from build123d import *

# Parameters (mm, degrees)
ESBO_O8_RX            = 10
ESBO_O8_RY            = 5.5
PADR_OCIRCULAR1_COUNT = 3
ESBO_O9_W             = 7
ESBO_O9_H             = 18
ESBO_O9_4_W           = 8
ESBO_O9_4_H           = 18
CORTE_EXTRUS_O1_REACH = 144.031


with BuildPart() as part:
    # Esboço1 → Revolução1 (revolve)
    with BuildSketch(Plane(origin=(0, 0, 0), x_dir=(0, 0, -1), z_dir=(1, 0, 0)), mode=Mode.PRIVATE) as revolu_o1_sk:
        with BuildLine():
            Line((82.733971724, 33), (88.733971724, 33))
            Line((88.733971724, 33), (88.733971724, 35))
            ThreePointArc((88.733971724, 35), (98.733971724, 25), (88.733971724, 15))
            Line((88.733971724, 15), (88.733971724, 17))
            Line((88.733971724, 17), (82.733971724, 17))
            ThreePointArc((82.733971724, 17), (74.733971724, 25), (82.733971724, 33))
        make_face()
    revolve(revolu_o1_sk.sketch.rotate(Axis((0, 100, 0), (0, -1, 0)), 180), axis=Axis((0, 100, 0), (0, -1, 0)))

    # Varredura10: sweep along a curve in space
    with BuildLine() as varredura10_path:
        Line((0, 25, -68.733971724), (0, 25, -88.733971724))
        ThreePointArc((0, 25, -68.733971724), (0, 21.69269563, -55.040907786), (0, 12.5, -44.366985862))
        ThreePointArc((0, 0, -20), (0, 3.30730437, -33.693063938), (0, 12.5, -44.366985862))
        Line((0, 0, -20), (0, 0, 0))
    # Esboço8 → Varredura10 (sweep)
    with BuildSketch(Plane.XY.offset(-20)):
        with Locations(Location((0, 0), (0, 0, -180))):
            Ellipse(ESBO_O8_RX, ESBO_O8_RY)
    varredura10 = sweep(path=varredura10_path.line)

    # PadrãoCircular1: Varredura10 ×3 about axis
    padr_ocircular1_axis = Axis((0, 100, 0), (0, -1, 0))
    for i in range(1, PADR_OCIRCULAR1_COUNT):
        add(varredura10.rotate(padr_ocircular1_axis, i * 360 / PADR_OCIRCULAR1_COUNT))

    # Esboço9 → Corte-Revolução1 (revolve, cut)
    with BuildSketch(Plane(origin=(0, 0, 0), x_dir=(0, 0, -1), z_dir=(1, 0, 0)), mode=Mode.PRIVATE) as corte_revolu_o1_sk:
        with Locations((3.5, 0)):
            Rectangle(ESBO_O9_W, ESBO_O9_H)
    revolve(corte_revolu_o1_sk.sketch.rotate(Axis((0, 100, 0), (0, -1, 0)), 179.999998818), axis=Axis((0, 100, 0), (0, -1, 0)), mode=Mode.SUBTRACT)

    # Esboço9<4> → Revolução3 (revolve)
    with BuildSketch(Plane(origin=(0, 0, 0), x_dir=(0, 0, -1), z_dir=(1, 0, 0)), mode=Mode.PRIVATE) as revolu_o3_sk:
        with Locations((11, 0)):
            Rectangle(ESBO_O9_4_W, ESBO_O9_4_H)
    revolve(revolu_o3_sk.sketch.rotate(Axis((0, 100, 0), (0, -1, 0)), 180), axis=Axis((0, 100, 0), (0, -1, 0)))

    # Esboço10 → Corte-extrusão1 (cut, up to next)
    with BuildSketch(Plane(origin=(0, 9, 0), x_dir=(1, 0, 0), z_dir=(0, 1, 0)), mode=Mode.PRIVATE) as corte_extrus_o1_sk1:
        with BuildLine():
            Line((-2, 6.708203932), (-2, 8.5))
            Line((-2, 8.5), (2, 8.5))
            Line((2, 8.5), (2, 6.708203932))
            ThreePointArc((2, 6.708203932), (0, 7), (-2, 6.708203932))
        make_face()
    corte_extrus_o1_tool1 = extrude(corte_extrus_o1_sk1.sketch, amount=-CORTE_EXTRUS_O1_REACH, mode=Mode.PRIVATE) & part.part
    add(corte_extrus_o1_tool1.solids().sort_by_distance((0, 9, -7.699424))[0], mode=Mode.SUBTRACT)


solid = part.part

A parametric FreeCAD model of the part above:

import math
import FreeCAD as App
import Part
import Sketcher
Q = App.Units.Quantity


def add_polygon(sketch, points):
    """Adds a closed chain of lines whose ends are joined by coincident constraints."""
    first, n = sketch.GeometryCount, len(points)
    for a, b in zip(points, points[1:] + points[:1]):
        sketch.addGeometry(Part.LineSegment(App.Vector(*a, 0), App.Vector(*b, 0)), False)
    for i in range(n):
        sketch.addConstraint(Sketcher.Constraint("Coincident", first + i, 2, first + (i + 1) % n, 1))

doc = App.newDocument("Part")
body = doc.addObject("PartDesign::Body", "Body")

# Sketch on YZ plane
sketch1 = body.newObject("Sketcher::SketchObject", "Sketch")
sketch1.AttachmentSupport = (doc.getObject("YZ_Plane"), [""])
sketch1.MapMode = "FlatFace"
sketch1.addGeometry([
    Part.LineSegment(App.Vector(33, -88.7, 0), App.Vector(33, -82.7, 0)),  # 0
    Part.ArcOfCircle(Part.Circle(App.Vector(25, -82.7, 0), App.Vector(0, 0, 1), 8), math.radians(0), math.radians(180)),  # 1
    Part.LineSegment(App.Vector(17, -82.7, 0), App.Vector(17, -88.7, 0)),  # 2
    Part.LineSegment(App.Vector(17, -88.7, 0), App.Vector(15, -88.7, 0)),  # 3
    Part.ArcOfCircle(Part.Circle(App.Vector(25, -88.7, 0), App.Vector(0, 0, 1), 10), math.radians(180), math.radians(360)),  # 4
    Part.LineSegment(App.Vector(35, -88.7, 0), App.Vector(33, -88.7, 0)),  # 5
], False)
sketch1.addConstraint([
    Sketcher.Constraint("Tangent", 0, 2, 1, 1),
    Sketcher.Constraint("Tangent", 1, 2, 2, 1),
    Sketcher.Constraint("Coincident", 2, 2, 3, 1),
    Sketcher.Constraint("Coincident", 3, 2, 4, 1),
    Sketcher.Constraint("Coincident", 4, 2, 5, 1),
    Sketcher.Constraint("Coincident", 5, 2, 0, 1),
    Sketcher.Constraint("Vertical", 0),
    Sketcher.Constraint("Vertical", 2),
    Sketcher.Constraint("Horizontal", 3),
    Sketcher.Constraint("Horizontal", 5),
    Sketcher.Constraint("Horizontal", 4, 3, 2, 2),
    Sketcher.Constraint("Horizontal", 3, 2, 4, 2),
    Sketcher.Constraint("Vertical", 1, 3, 4, 3),
    Sketcher.Constraint("Radius", 1, Q("8 mm")),
    Sketcher.Constraint("Radius", 4, Q("10 mm")),
    Sketcher.Constraint("DistanceY", 0, 1, 0, 2, Q("6 mm")),
    Sketcher.Constraint("DistanceX", -1, 1, 1, 3, Q("25 mm")),
    Sketcher.Constraint("DistanceY", 1, 3, -1, 1, Q("82.733972 mm")),
])
revolution = body.newObject("PartDesign::Revolution", "Revolution")
revolution.Profile = sketch1
revolution.ReferenceAxis = (sketch1, ["H_Axis"])
revolution.Angle = 360

# Sketch on XY plane
sketch2 = body.newObject("Sketcher::SketchObject", "Sketch001")
sketch2.AttachmentSupport = (doc.getObject("XY_Plane"), [""])
sketch2.MapMode = "FlatFace"
sketch2.AttachmentOffset = App.Placement(App.Vector(0, 0, -20), App.Rotation())
sketch2.addGeometry(Part.Ellipse(App.Vector(-10, 0, 0), App.Vector(0, -5.5, 0), App.Vector(0, 0, 0)), False)
sketch2.addConstraint(Sketcher.Constraint("Block", 0))

# Sketch on YZ plane
sketch3 = body.newObject("Sketcher::SketchObject", "Sketch002")
sketch3.AttachmentSupport = (doc.getObject("YZ_Plane"), [""])
sketch3.MapMode = "FlatFace"
sketch3.addGeometry([
    Part.LineSegment(App.Vector(0, 0, 0), App.Vector(0, -20, 0)),
    Part.ArcOfCircle(Part.Circle(App.Vector(30, -20, 0), App.Vector(0, 0, 1), 30), math.radians(180), math.radians(234)),
    Part.ArcOfCircle(Part.Circle(App.Vector(-5, -69, 0), App.Vector(0, 0, 1), 30), math.radians(0), math.radians(54)),
    Part.LineSegment(App.Vector(25, -69, 0), App.Vector(25, -89, 0)),
], False)
sketch3.addConstraint([
    Sketcher.Constraint("Tangent", 0, 2, 1, 1),
    Sketcher.Constraint("Tangent", 1, 2, 2, 2),
    Sketcher.Constraint("Tangent", 2, 1, 3, 1),
    Sketcher.Constraint("Vertical", 0),
    Sketcher.Constraint("Vertical", 3),
    Sketcher.Constraint("Coincident", 0, 1, -1, 1),
    Sketcher.Constraint("Equal", 1, 2),
    Sketcher.Constraint("Equal", 0, 3),
    Sketcher.Constraint("Radius", 1, Q("30 mm")),
    Sketcher.Constraint("DistanceY", 0, 2, 0, 1, Q("20 mm")),
    Sketcher.Constraint("DistanceX", 2, 3, -1, 1, Q("5 mm")),
])
doc.recompute()

additivepipe = body.newObject("PartDesign::AdditivePipe", "AdditivePipe")
additivepipe.Profile = sketch2
additivepipe.Spine = (sketch3, ["Edge1", "Edge2", "Edge3", "Edge4"])
doc.recompute()

polarpattern = body.newObject("PartDesign::PolarPattern", "PolarPattern")
polarpattern.Originals = [additivepipe]
polarpattern.Axis = (doc.getObject("Y_Axis"), [""])
polarpattern.Angle = 360
polarpattern.Occurrences = 3
body.Tip = polarpattern

# Sketch on YZ plane
sketch4 = body.newObject("Sketcher::SketchObject", "Sketch003")
sketch4.AttachmentSupport = (doc.getObject("YZ_Plane"), [""])
sketch4.MapMode = "FlatFace"
add_polygon(sketch4, [(9, 0), (-9, 0), (-9, -7), (9, -7)])  # lines 0-3
sketch4.addConstraint([
    Sketcher.Constraint("Horizontal", 0),
    Sketcher.Constraint("Vertical", 1),
    Sketcher.Constraint("Horizontal", 2),
    Sketcher.Constraint("Vertical", 3),
    Sketcher.Constraint("Symmetric", 0, 2, 3, 2, -1, 1),
    Sketcher.Constraint("DistanceX", 0, 2, 0, 1, Q("18 mm")),
    Sketcher.Constraint("DistanceY", 1, 2, 1, 1, Q("7 mm")),
])
groove = body.newObject("PartDesign::Groove", "Groove")
groove.Profile = sketch4
groove.ReferenceAxis = (sketch4, ["H_Axis"])
groove.Angle = 360

# Sketch on YZ plane
sketch5 = body.newObject("Sketcher::SketchObject", "Sketch004")
sketch5.AttachmentSupport = (doc.getObject("YZ_Plane"), [""])
sketch5.MapMode = "FlatFace"
add_polygon(sketch5, [(9, -7), (-9, -7), (-9, -15), (9, -15)])  # lines 0-3
sketch5.addConstraint([
    Sketcher.Constraint("Horizontal", 0),
    Sketcher.Constraint("Vertical", 1),
    Sketcher.Constraint("Horizontal", 2),
    Sketcher.Constraint("Vertical", 3),
    Sketcher.Constraint("DistanceX", 0, 2, 0, 1, Q("18 mm")),
    Sketcher.Constraint("DistanceY", 1, 2, 1, 1, Q("8 mm")),
    Sketcher.Constraint("DistanceX", 0, 2, -1, 1, Q("9 mm")),
    Sketcher.Constraint("DistanceY", 0, 2, -1, 1, Q("7 mm")),
])
revolution2 = body.newObject("PartDesign::Revolution", "Revolution001")
revolution2.Profile = sketch5
revolution2.ReferenceAxis = (sketch5, ["H_Axis"])
revolution2.Angle = 360

# Sketch on XZ plane
sketch6 = body.newObject("Sketcher::SketchObject", "Sketch005")
sketch6.AttachmentSupport = (doc.getObject("XZ_Plane"), [""])
sketch6.MapMode = "FlatFace"
sketch6.AttachmentOffset = App.Placement(App.Vector(0, 0, -9), App.Rotation())
sketch6.addGeometry([
    Part.LineSegment(App.Vector(-2, -8.5, 0), App.Vector(-2, -6.7, 0)),
    Part.ArcOfCircle(Part.Circle(App.Vector(0, 0, 0), App.Vector(0, 0, 1), 7), math.radians(-107), math.radians(-73)),
    Part.LineSegment(App.Vector(2, -6.7, 0), App.Vector(2, -8.5, 0)),
    Part.LineSegment(App.Vector(2, -8.5, 0), App.Vector(-2, -8.5, 0)),
], False)
sketch6.addConstraint([
    Sketcher.Constraint("Coincident", 0, 2, 1, 1),
    Sketcher.Constraint("Coincident", 1, 2, 2, 1),
    Sketcher.Constraint("Coincident", 2, 2, 3, 1),
    Sketcher.Constraint("Coincident", 3, 2, 0, 1),
    Sketcher.Constraint("Vertical", 0),
    Sketcher.Constraint("Vertical", 2),
    Sketcher.Constraint("Horizontal", 3),
    Sketcher.Constraint("Coincident", 1, 3, -1, 1),
    Sketcher.Constraint("Horizontal", 0, 2, 1, 2),
    Sketcher.Constraint("Radius", 1, Q("7 mm")),
    Sketcher.Constraint("DistanceX", 3, 2, 3, 1, Q("4 mm")),
    Sketcher.Constraint("DistanceY", 2, 2, -1, 1, Q("8.5 mm")),
])
pocket1 = body.newObject("PartDesign::Pocket", "Pocket")
pocket1.Profile = sketch6
pocket1.Type = "UpToFirst"
pocket1.Reversed = True

doc.recompute()
